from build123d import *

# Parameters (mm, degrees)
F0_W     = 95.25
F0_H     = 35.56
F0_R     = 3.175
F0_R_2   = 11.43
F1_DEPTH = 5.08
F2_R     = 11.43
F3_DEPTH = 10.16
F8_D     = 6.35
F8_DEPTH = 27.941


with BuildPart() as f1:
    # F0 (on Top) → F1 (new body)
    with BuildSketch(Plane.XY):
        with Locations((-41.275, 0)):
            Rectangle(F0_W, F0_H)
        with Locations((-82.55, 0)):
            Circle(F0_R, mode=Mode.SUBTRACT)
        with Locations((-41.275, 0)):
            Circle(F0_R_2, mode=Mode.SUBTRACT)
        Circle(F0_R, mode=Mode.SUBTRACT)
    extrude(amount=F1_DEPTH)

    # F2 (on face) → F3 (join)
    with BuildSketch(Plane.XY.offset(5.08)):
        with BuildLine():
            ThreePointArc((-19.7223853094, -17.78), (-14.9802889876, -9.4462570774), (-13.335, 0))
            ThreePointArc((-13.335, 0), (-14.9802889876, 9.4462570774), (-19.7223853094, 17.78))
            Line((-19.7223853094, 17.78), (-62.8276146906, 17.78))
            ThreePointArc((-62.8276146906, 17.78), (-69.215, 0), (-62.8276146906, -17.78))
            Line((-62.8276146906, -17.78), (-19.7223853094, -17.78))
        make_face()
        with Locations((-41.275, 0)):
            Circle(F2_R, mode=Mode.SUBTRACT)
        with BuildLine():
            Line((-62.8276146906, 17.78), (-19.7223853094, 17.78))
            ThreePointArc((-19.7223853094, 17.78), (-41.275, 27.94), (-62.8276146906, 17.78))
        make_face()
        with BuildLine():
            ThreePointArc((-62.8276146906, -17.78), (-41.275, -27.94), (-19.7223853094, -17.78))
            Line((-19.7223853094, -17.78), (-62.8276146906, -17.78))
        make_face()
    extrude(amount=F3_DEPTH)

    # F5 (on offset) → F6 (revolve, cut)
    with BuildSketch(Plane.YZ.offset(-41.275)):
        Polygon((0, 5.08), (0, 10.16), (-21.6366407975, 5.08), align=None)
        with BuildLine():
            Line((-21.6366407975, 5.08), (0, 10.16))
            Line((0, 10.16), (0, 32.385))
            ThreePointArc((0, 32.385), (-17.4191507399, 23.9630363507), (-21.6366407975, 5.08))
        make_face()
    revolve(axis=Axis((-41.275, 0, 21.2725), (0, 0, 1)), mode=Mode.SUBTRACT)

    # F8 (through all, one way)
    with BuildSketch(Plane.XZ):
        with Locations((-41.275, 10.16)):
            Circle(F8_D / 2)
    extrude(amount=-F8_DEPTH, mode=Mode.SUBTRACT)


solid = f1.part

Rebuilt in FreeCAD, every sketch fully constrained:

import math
import FreeCAD as App
import Part
import Sketcher
from FreeCAD import Vector
Q = App.Units.Quantity

doc = App.newDocument("Part")
body = doc.addObject("PartDesign::Body", "Body")

sketch1 = body.newObject("Sketcher::SketchObject", "Sketch")
sketch1.AttachmentSupport = (doc.getObject("XY_Plane"), [""])
sketch1.MapMode = "FlatFace"
sketch1.addGeometry([
    Part.LineSegment(Vector(-88.9, 17.78, 0), Vector(-88.9, -17.78, 0)),
    Part.LineSegment(Vector(-88.9, -17.78, 0), Vector(6.35, -17.78, 0)),
    Part.LineSegment(Vector(6.35, -17.78, 0), Vector(6.35, 17.78, 0)),
    Part.LineSegment(Vector(6.35, 17.78, 0), Vector(-88.9, 17.78, 0)),
    Part.Circle(Vector(-82.55, 0, 0), Vector(0, 0, 1), 3.175),
    Part.Circle(Vector(-41.275, 0, 0), Vector(0, 0, 1), 11.43),
    Part.Circle(Vector(0, 0, 0), Vector(0, 0, 1), 3.175),
], False)
sketch1.addConstraint([
    Sketcher.Constraint("Coincident", 0, 2, 1, 1),
    Sketcher.Constraint("Coincident", 1, 2, 2, 1),
    Sketcher.Constraint("Coincident", 2, 2, 3, 1),
    Sketcher.Constraint("Coincident", 3, 2, 0, 1),
    Sketcher.Constraint("Vertical", 0),
    Sketcher.Constraint("Horizontal", 1),
    Sketcher.Constraint("Vertical", 2),
    Sketcher.Constraint("Horizontal", 3),
    Sketcher.Constraint("Coincident", 6, 3, -1, 1),
    Sketcher.Constraint("Equal", 4, 6),
    Sketcher.Constraint("PointOnObject", 4, 3, -1),
    Sketcher.Constraint("PointOnObject", 5, 3, -1),
    Sketcher.Constraint("Diameter", 5, Q("0.9 in")),
    Sketcher.Constraint("Diameter", 4, Q("0.25 in")),
    Sketcher.Constraint("DistanceY", 0, 2, 0, 1, Q("1.4 in")),
    Sketcher.Constraint("DistanceX", 1, 1, 1, 2, Q("3.75 in")),
    Sketcher.Constraint("DistanceX", 0, 2, -1, 1, Q("3.5 in")),
    Sketcher.Constraint("DistanceY", 0, 2, -1, 1, Q("0.7 in")),
    Sketcher.Constraint("DistanceX", 4, 3, 1, 2, Q("3.5 in")),
    Sketcher.Constraint("DistanceX", 5, 3, -1, 1, Q("1.625 in")),
])
pad1 = body.newObject("PartDesign::Pad", "Pad")
pad1.Profile = sketch1
pad1.Length = Q("0.2 in")

sketch2 = body.newObject("Sketcher::SketchObject", "Sketch001")
sketch2.AttachmentSupport = (doc.getObject("XY_Plane"), [""])
sketch2.MapMode = "FlatFace"
sketch2.AttachmentOffset = App.Placement(Vector(0, 0, 0.2 * 25.4), App.Rotation())
sketch2.addGeometry([
    Part.ArcOfCircle(Part.Circle(Vector(-41.275, 0, 0), Vector(0, 0, 1), 27.94), math.radians(-39.521196), math.radians(0)),
    Part.ArcOfCircle(Part.Circle(Vector(-41.275, 0, 0), Vector(0, 0, 1), 27.94), math.radians(0), math.radians(39.521196)),
    Part.ArcOfCircle(Part.Circle(Vector(-41.275, 0, 0), Vector(0, 0, 1), 27.94), math.radians(39.521196), math.radians(140.478804)),
    Part.ArcOfCircle(Part.Circle(Vector(-41.275, 0, 0), Vector(0, 0, 1), 27.94), math.radians(140.478804), math.radians(219.521196)),
    Part.ArcOfCircle(Part.Circle(Vector(-41.275, 0, 0), Vector(0, 0, 1), 27.94), math.radians(-140.478804), math.radians(-39.521196)),
    Part.Circle(Vector(-41.275, 0, 0), Vector(0, 0, 1), 11.43),
], False)
sketch2.addConstraint([
    Sketcher.Constraint("Tangent", 0, 2, 1, 1),
    Sketcher.Constraint("Tangent", 1, 2, 2, 1),
    Sketcher.Constraint("Tangent", 2, 2, 3, 1),
    Sketcher.Constraint("Tangent", 3, 2, 4, 1),
    Sketcher.Constraint("Tangent", 4, 2, 0, 1),
    Sketcher.Constraint("Coincident", 2, 3, 0, 3),
    Sketcher.Constraint("Coincident", 5, 3, 0, 3),
    Sketcher.Constraint("Symmetric", 2, 2, 3, 2, -1),
    Sketcher.Constraint("PointOnObject", 0, 2, -1),
    Sketcher.Constraint("Horizontal", 1, 2, 2, 2),
    Sketcher.Constraint("Horizontal", 3, 2, 4, 2),
    Sketcher.Constraint("Diameter", 5, Q("0.9 in")),
    Sketcher.Constraint("Radius", 0, Q("1.1 in")),
    Sketcher.Constraint("DistanceY", -1, 1, 1, 2, Q("0.7 in")),
    Sketcher.Constraint("DistanceX", 0, 3, -1, 1, Q("1.625 in")),
])
pad2 = body.newObject("PartDesign::Pad", "Pad001")
pad2.Profile = sketch2
pad2.Length = Q("0.4 in")

sketch3 = body.newObject("Sketcher::SketchObject", "Sketch002")
sketch3.AttachmentSupport = (doc.getObject("YZ_Plane"), [""])
sketch3.MapMode = "FlatFace"
sketch3.AttachmentOffset = App.Placement(Vector(0, 0, -1.625 * 25.4), App.Rotation())
sketch3.addGeometry([
    Part.LineSegment(Vector(0, 5.08, 0), Vector(0, 32.385, 0)),
    Part.ArcOfCircle(Part.Circle(Vector(0, 10.16, 0), Vector(0, 0, 1), 22.225), math.radians(90), math.radians(193.21298)),
    Part.LineSegment(Vector(-21.636641, 5.08, 0), Vector(0, 5.08, 0)),
], False)
sketch3.addConstraint([
    Sketcher.Constraint("Coincident", 0, 2, 1, 1),
    Sketcher.Constraint("Coincident", 1, 2, 2, 1),
    Sketcher.Constraint("Coincident", 2, 2, 0, 1),
    Sketcher.Constraint("Vertical", 0),
    Sketcher.Constraint("Horizontal", 2),
    Sketcher.Constraint("PointOnObject", 1, 3, -2),
    Sketcher.Constraint("PointOnObject", 0, 2, -2),
    Sketcher.Constraint("Radius", 1, Q("0.875 in")),
    Sketcher.Constraint("DistanceY", -1, 1, 1, 3, Q("0.4 in")),
    Sketcher.Constraint("DistanceY", -1, 1, 1, 2, Q("0.2 in")),
])
groove = body.newObject("PartDesign::Groove", "Groove")
groove.Profile = sketch3
groove.ReferenceAxis = (sketch3, ["V_Axis"])
groove.Angle = 360

sketch4 = body.newObject("Sketcher::SketchObject", "Sketch003")
sketch4.AttachmentSupport = (doc.getObject("XZ_Plane"), [""])
sketch4.MapMode = "FlatFace"
sketch4.addGeometry(Part.Circle(Vector(-41.275, 10.16, 0), Vector(0, 0, 1), 3.175), False)
sketch4.addConstraint([
    Sketcher.Constraint("Diameter", 0, Q("0.25 in")),
    Sketcher.Constraint("DistanceY", -1, 1, 0, 3, Q("0.4 in")),
    Sketcher.Constraint("DistanceX", 0, 3, -1, 1, Q("1.625 in")),
])
pocket1 = body.newObject("PartDesign::Pocket", "Pocket")
pocket1.Profile = sketch4
pocket1.Type = "ThroughAll"

doc.recompute()
